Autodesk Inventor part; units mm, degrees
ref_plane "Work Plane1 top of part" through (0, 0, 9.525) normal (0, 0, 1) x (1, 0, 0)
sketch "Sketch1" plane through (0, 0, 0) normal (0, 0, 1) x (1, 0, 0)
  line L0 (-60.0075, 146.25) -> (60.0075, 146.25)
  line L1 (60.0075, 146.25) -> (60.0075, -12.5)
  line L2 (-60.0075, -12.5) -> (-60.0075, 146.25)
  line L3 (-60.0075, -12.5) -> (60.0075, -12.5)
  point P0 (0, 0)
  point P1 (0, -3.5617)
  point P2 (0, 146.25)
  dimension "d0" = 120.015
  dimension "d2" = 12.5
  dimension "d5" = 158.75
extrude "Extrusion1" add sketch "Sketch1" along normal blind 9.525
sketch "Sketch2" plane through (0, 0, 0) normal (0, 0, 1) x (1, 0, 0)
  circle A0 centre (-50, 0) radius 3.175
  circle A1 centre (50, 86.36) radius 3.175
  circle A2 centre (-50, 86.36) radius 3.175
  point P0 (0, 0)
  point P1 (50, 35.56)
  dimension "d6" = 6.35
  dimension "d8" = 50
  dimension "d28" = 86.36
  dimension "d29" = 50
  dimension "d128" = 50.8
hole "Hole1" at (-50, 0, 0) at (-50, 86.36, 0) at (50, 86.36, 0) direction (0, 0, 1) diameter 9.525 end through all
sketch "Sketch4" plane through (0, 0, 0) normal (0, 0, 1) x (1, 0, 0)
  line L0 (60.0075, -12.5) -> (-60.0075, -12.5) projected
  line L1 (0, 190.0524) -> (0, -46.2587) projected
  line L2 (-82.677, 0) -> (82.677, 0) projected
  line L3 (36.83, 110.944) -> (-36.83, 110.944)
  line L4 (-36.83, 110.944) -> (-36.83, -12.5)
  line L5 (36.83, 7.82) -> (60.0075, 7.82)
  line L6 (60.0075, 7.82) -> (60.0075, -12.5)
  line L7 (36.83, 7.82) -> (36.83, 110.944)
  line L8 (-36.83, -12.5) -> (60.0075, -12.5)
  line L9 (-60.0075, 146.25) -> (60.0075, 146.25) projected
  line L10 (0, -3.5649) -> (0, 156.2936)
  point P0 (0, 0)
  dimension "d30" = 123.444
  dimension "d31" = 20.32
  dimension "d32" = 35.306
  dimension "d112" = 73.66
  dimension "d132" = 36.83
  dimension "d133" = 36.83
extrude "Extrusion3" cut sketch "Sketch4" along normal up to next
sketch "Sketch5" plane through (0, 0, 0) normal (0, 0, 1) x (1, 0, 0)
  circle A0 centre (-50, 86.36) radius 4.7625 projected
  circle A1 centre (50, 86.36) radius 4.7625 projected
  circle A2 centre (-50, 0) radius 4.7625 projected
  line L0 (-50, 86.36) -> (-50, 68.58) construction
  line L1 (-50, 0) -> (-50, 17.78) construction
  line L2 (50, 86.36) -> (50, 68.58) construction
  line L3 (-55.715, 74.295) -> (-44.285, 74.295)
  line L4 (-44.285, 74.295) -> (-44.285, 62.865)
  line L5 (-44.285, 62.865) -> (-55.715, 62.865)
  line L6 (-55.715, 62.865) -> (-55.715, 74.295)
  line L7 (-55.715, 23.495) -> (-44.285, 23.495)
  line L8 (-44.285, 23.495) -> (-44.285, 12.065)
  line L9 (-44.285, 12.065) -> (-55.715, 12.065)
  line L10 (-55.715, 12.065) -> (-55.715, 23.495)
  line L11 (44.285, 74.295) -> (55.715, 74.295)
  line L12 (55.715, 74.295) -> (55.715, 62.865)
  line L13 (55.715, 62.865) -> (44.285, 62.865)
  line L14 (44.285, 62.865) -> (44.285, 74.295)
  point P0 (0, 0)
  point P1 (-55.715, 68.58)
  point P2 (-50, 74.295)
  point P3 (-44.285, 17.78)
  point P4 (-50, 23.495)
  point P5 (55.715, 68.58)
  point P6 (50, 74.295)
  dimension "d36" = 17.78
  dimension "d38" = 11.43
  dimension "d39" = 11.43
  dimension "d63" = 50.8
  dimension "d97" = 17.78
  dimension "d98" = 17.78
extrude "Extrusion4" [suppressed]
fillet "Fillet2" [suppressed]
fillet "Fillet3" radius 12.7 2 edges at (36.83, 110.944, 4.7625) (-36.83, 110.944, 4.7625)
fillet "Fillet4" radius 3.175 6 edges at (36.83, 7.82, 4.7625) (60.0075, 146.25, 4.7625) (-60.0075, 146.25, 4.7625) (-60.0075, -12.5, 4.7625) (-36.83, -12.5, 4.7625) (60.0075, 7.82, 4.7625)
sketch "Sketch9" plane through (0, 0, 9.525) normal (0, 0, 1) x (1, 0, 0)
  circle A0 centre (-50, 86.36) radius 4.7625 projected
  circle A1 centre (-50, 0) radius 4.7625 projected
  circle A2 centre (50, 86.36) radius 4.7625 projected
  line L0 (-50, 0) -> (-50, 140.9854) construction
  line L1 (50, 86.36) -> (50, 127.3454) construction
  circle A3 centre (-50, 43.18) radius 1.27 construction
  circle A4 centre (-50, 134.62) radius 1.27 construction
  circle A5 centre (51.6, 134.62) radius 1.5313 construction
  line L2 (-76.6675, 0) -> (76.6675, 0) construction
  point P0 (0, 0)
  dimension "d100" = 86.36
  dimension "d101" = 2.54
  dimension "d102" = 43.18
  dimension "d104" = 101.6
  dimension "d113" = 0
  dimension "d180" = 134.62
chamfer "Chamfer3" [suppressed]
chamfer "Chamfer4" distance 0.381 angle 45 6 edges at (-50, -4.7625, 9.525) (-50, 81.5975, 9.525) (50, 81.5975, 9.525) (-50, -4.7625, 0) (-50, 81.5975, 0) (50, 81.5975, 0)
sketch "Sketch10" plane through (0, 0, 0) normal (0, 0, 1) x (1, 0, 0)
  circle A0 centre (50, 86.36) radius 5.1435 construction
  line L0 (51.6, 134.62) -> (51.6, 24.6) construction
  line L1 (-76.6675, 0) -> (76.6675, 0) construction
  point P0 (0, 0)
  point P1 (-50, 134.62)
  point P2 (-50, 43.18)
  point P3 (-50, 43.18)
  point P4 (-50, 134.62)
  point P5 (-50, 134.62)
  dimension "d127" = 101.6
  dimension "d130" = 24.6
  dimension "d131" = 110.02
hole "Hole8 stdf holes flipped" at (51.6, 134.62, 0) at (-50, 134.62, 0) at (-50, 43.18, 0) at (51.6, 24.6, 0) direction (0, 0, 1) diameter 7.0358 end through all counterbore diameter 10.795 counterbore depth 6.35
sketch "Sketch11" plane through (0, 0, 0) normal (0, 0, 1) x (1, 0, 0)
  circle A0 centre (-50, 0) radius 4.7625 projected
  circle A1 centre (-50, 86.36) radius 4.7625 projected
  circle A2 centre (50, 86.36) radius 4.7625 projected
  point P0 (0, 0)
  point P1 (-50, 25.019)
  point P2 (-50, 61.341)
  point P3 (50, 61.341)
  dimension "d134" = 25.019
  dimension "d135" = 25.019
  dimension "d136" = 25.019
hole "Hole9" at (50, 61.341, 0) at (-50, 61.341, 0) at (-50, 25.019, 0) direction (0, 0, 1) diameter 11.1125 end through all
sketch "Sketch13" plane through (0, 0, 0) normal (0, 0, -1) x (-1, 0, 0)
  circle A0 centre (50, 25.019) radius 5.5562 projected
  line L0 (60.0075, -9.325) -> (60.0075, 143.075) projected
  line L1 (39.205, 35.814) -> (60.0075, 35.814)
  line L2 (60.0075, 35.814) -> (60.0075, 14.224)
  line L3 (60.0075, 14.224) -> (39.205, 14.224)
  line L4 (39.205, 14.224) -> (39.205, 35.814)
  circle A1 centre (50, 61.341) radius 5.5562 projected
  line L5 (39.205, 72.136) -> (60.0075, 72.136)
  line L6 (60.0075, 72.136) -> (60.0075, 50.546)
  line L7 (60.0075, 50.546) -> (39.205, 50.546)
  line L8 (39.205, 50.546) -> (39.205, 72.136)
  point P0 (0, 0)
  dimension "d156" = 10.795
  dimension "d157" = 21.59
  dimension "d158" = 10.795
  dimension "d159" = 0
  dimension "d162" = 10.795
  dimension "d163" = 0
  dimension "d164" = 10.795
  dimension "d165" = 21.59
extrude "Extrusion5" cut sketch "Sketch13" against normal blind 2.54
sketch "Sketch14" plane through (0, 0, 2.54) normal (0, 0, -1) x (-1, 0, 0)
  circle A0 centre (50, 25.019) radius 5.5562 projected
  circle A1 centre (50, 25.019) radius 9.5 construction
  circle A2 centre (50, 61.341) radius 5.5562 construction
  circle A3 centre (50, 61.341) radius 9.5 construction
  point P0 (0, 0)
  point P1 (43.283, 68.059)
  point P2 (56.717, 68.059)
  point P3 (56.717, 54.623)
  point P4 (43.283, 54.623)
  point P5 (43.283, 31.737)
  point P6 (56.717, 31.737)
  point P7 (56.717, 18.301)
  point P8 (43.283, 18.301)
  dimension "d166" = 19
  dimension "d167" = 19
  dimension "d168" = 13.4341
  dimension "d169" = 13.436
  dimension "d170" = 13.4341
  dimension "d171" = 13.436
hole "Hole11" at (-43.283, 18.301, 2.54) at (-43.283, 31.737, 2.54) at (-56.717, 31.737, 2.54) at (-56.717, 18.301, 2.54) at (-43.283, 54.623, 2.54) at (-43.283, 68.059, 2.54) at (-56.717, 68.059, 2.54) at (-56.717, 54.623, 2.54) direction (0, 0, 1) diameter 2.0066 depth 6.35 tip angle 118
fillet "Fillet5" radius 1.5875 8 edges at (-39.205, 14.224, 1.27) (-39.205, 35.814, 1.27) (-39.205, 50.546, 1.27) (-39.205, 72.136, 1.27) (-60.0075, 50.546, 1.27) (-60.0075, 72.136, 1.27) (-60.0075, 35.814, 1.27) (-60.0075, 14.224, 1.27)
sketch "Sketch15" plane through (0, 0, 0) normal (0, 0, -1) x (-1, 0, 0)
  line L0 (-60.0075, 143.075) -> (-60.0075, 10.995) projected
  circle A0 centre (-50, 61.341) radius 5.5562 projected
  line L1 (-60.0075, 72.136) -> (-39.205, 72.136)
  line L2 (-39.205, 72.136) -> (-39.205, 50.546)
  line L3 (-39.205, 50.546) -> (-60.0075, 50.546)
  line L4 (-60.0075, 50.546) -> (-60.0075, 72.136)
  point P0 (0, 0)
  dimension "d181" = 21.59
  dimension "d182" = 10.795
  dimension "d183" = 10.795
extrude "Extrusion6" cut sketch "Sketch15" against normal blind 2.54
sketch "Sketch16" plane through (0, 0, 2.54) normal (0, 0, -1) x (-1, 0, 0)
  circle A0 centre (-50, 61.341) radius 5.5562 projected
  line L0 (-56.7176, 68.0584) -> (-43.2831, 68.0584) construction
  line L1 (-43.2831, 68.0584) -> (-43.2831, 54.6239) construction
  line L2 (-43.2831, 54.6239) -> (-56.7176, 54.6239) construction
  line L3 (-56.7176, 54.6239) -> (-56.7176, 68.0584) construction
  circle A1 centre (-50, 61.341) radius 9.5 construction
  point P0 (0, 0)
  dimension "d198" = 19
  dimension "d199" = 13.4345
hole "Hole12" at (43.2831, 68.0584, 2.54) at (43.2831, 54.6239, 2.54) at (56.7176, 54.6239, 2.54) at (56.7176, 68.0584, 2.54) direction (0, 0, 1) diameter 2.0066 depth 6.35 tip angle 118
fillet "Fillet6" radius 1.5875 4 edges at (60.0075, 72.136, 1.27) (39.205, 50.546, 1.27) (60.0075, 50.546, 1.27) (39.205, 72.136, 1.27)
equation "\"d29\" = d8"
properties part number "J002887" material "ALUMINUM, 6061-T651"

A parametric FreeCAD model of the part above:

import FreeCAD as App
import Part
import Sketcher
Q = App.Units.Quantity


def edges_at(feature, points):
    """Names of the edges that pass closest to the given points."""
    edges = feature.Shape.Edges
    near = lambda p: min(range(len(edges)), key=lambda i: edges[i].distToShape(Part.Vertex(*p))[0])
    return sorted({f"Edge{near(p) + 1}" for p in points})

doc = App.newDocument("Part")
params = doc.addObject("Spreadsheet::Sheet", "Params")
for row, (alias, value) in enumerate([
    ("sketch1_height", "6.25 in"),
    ("sketch1_width", "4.725 in"),
    ("pad1_length", "0.375 in"),
    ("sketch2_diameter", "0.375 in"),
    ("hole_diameter", "0.375 in"),
    ("sketch3_width", "2.9 in"),
    ("sketch3_height", "0.8 in"),
    ("sketch3_height2", "4.86 in"),
    ("sketch3_width2", "3.8125 in"),
    ("fillet_radius", "0.5 in"),
    ("fillet2_radius", "0.125 in"),
    ("chamfer_size", "0.015 in"),
    ("sketch4_diameter", "0.277 in"),
    ("hole2_diameter", "0.277 in"),
    ("hole2_cbore_diameter", "0.425 in"),
    ("hole2_cbore_depth", "0.25 in"),
    ("sketch5_diameter", "0.4375 in"),
    ("hole3_diameter", "0.4375 in"),
    ("sketch6_height", "0.85 in"),
    ("sketch6_diameter", "0.4375 in"),
    ("sketch6_width", "0.819 in"),
    ("pocket2_length", "0.1 in"),
    ("sketch7_diameter", "0.079 in"),
    ("hole4_diameter", "0.079 in"),
    ("hole4_depth", "0.25 in"),
    ("fillet3_radius", "0.0625 in"),
    ("sketch8_height", "0.85 in"),
    ("sketch8_diameter", "0.4375 in"),
    ("sketch8_width", "0.819 in"),
    ("pocket3_length", "0.1 in"),
    ("sketch9_diameter", "0.079 in"),
    ("hole5_diameter", "0.079 in"),
    ("hole5_depth", "0.25 in"),
    ("fillet4_radius", "0.0625 in"),
], start=1):
    params.set(f"A{row}", alias)
    params.set(f"B{row}", "=" + value)
    params.setAlias(f"B{row}", alias)

body = doc.addObject("PartDesign::Body", "Body")

# Sketch on XY plane
sketch1 = body.newObject("Sketcher::SketchObject", "Sketch")
sketch1.AttachmentSupport = (doc.getObject("XY_Plane"), [""])
sketch1.MapMode = "FlatFace"
sketch1.addGeometry([
    Part.LineSegment(App.Vector(60.0075, 146.25, 0), App.Vector(-60.0075, 146.25, 0)),
    Part.LineSegment(App.Vector(-60.0075, 146.25, 0), App.Vector(-60.0075, -12.5, 0)),
    Part.LineSegment(App.Vector(-60.0075, -12.5, 0), App.Vector(60.0075, -12.5, 0)),
    Part.LineSegment(App.Vector(60.0075, -12.5, 0), App.Vector(60.0075, 146.25, 0)),
], False)
sketch1.addConstraint([
    Sketcher.Constraint("Coincident", 0, 2, 1, 1),
    Sketcher.Constraint("Coincident", 1, 2, 2, 1),
    Sketcher.Constraint("Coincident", 2, 2, 3, 1),
    Sketcher.Constraint("Coincident", 3, 2, 0, 1),
    Sketcher.Constraint("Horizontal", 0),
    Sketcher.Constraint("Vertical", 1),
    Sketcher.Constraint("Horizontal", 2),
    Sketcher.Constraint("Vertical", 3),
    Sketcher.Constraint("DistanceY", 1, 2, 1, 1, Q("6.25 in")),
    Sketcher.Constraint("DistanceX", 0, 2, 0, 1, Q("4.725 in")),
    Sketcher.Constraint("DistanceY", 1, 2, -1, 1, 12.5),
    Sketcher.Constraint("DistanceX", 0, 2, -1, 1, Q("2.3625 in")),
])
sketch1.setExpression("Constraints[8]", "Params.sketch1_height")
sketch1.setExpression("Constraints[9]", "Params.sketch1_width")
pad1 = body.newObject("PartDesign::Pad", "Pad")
pad1.Profile = sketch1
pad1.setExpression("Length", "Params.pad1_length")

# Sketch on XY plane
sketch2 = body.newObject("Sketcher::SketchObject", "Sketch001")
sketch2.AttachmentSupport = (doc.getObject("XY_Plane"), [""])
sketch2.MapMode = "FlatFace"
sketch2.addGeometry([
    Part.Circle(App.Vector(-50, 0, 0), App.Vector(0, 0, 1), 4.7625),
    Part.Circle(App.Vector(-50, 86.36, 0), App.Vector(0, 0, 1), 4.7625),
    Part.Circle(App.Vector(50, 86.36, 0), App.Vector(0, 0, 1), 4.7625),
], False)
sketch2.addConstraint([
    Sketcher.Constraint("Equal", 0, 1),
    Sketcher.Constraint("Equal", 1, 2),
    Sketcher.Constraint("Symmetric", 1, 3, 2, 3, -2),
    Sketcher.Constraint("PointOnObject", 0, 3, -1),
    Sketcher.Constraint("Vertical", 0, 3, 1, 3),
    Sketcher.Constraint("Diameter", 0, Q("0.375 in")),
    Sketcher.Constraint("DistanceY", -1, 1, 1, 3, Q("3.4 in")),
    Sketcher.Constraint("DistanceX", 1, 3, 2, 3, Q("3.937 in")),
])
sketch2.setExpression("Constraints[5]", "Params.sketch2_diameter")
doc.recompute()
hole = body.newObject("PartDesign::Hole", "Hole")
hole.Profile = sketch2
hole.ThreadType = "None"
hole.setExpression("Diameter", "Params.hole_diameter")
hole.DepthType = "ThroughAll"
hole.Reversed = True

# Sketch on XY plane
sketch3 = body.newObject("Sketcher::SketchObject", "Sketch002")
sketch3.AttachmentSupport = (doc.getObject("XY_Plane"), [""])
sketch3.MapMode = "FlatFace"
sketch3.addGeometry([
    Part.LineSegment(App.Vector(60.0075, -12.5, 0), App.Vector(60.0075, 7.82, 0)),  # 0
    Part.LineSegment(App.Vector(60.0075, 7.82, 0), App.Vector(36.83, 7.82, 0)),  # 1
    Part.LineSegment(App.Vector(36.83, 7.82, 0), App.Vector(36.83, 110.944, 0)),  # 2
    Part.LineSegment(App.Vector(36.83, 110.944, 0), App.Vector(-36.83, 110.944, 0)),  # 3
    Part.LineSegment(App.Vector(-36.83, 110.944, 0), App.Vector(-36.83, -12.5, 0)),  # 4
    Part.LineSegment(App.Vector(-36.83, -12.5, 0), App.Vector(60.0075, -12.5, 0)),  # 5
], False)
sketch3.addConstraint([
    Sketcher.Constraint("Coincident", 0, 2, 1, 1),
    Sketcher.Constraint("Coincident", 1, 2, 2, 1),
    Sketcher.Constraint("Coincident", 2, 2, 3, 1),
    Sketcher.Constraint("Coincident", 3, 2, 4, 1),
    Sketcher.Constraint("Coincident", 4, 2, 5, 1),
    Sketcher.Constraint("Coincident", 5, 2, 0, 1),
    Sketcher.Constraint("Vertical", 0),
    Sketcher.Constraint("Horizontal", 1),
    Sketcher.Constraint("Vertical", 2),
    Sketcher.Constraint("Horizontal", 3),
    Sketcher.Constraint("Vertical", 4),
    Sketcher.Constraint("Horizontal", 5),
    Sketcher.Constraint("DistanceX", 3, 2, 3, 1, Q("2.9 in")),
    Sketcher.Constraint("DistanceY", 0, 1, 0, 2, Q("0.8 in")),
    Sketcher.Constraint("DistanceY", 4, 2, 4, 1, Q("4.86 in")),
    Sketcher.Constraint("DistanceX", -1, 1, 1, 2, Q("1.45 in")),
    Sketcher.Constraint("DistanceX", 5, 1, 5, 2, Q("3.8125 in")),
    Sketcher.Constraint("DistanceY", -1, 1, 0, 2, 7.82),
])
sketch3.setExpression("Constraints[12]", "Params.sketch3_width")
sketch3.setExpression("Constraints[13]", "Params.sketch3_height")
sketch3.setExpression("Constraints[14]", "Params.sketch3_height2")
sketch3.setExpression("Constraints[16]", "Params.sketch3_width2")
pocket1 = body.newObject("PartDesign::Pocket", "Pocket")
pocket1.Profile = sketch3
pocket1.Type = "UpToFirst"
pocket1.Reversed = True
doc.recompute()

fillet = body.newObject("PartDesign::Fillet", "Fillet")
fillet.Base = (pocket1, edges_at(pocket1, [(36.83, 110.944, 4.763), (-36.83, 110.944, 4.763)]))
fillet.setExpression("Radius", "Params.fillet_radius")
doc.recompute()

fillet2 = body.newObject("PartDesign::Fillet", "Fillet001")
fillet2.Base = (fillet, edges_at(fillet, [
    (36.83, 7.82, 4.763),
    (60.008, 146.25, 4.763),
    (-60.008, 146.25, 4.763),
    (-60.008, -12.5, 4.763),
    (-36.83, -12.5, 4.763),
    (60.008, 7.82, 4.763),
]))
fillet2.setExpression("Radius", "Params.fillet2_radius")
doc.recompute()

chamfer = body.newObject("PartDesign::Chamfer", "Chamfer")
chamfer.Base = (fillet2, edges_at(fillet2, [
    (-50, -4.763, 9.525),
    (-50, 81.597, 9.525),
    (50, 81.597, 9.525),
    (-50, -4.763, 0),
    (-50, 81.597, 0),
    (50, 81.597, 0),
]))
chamfer.setExpression("Size", "Params.chamfer_size")

# Sketch on XY plane
sketch4 = body.newObject("Sketcher::SketchObject", "Sketch003")
sketch4.AttachmentSupport = (doc.getObject("XY_Plane"), [""])
sketch4.MapMode = "FlatFace"
sketch4.addGeometry([
    Part.Circle(App.Vector(51.6, 134.62, 0), App.Vector(0, 0, 1), 3.5179),
    Part.Circle(App.Vector(-50, 134.62, 0), App.Vector(0, 0, 1), 3.5179),
    Part.Circle(App.Vector(-50, 43.18, 0), App.Vector(0, 0, 1), 3.5179),
    Part.Circle(App.Vector(51.6, 24.6, 0), App.Vector(0, 0, 1), 3.5179),
], False)
sketch4.addConstraint([
    Sketcher.Constraint("Equal", 0, 1),
    Sketcher.Constraint("Equal", 1, 2),
    Sketcher.Constraint("Equal", 2, 3),
    Sketcher.Constraint("Horizontal", 0, 3, 1, 3),
    Sketcher.Constraint("Vertical", 1, 3, 2, 3),
    Sketcher.Constraint("Vertical", 0, 3, 3, 3),
    Sketcher.Constraint("Diameter", 0, Q("0.277 in")),
    Sketcher.Constraint("DistanceX", 1, 3, 0, 3, Q("4 in")),
    Sketcher.Constraint("DistanceY", -1, 1, 0, 3, Q("5.3 in")),
    Sketcher.Constraint("DistanceY", -1, 1, 2, 3, Q("1.7 in")),
    Sketcher.Constraint("DistanceX", -1, 1, 0, 3, Q("2.0315 in")),
    Sketcher.Constraint("DistanceY", -1, 1, 3, 3, Q("0.9685 in")),
])
sketch4.setExpression("Constraints[6]", "Params.sketch4_diameter")
doc.recompute()
hole2 = body.newObject("PartDesign::Hole", "Hole001")
hole2.Profile = sketch4
hole2.ThreadType = "None"
hole2.setExpression("Diameter", "Params.hole2_diameter")
hole2.DepthType = "ThroughAll"
hole2.HoleCutType = "Counterbore"
hole2.setExpression("HoleCutDiameter", "Params.hole2_cbore_diameter")
hole2.setExpression("HoleCutDepth", "Params.hole2_cbore_depth")
hole2.Reversed = True

# Sketch on XY plane
sketch5 = body.newObject("Sketcher::SketchObject", "Sketch004")
sketch5.AttachmentSupport = (doc.getObject("XY_Plane"), [""])
sketch5.MapMode = "FlatFace"
sketch5.addGeometry([
    Part.Circle(App.Vector(50, 61.341, 0), App.Vector(0, 0, 1), 5.55625),
    Part.Circle(App.Vector(-50, 61.341, 0), App.Vector(0, 0, 1), 5.55625),
    Part.Circle(App.Vector(-50, 25.019, 0), App.Vector(0, 0, 1), 5.55625),
], False)
sketch5.addConstraint([
    Sketcher.Constraint("Equal", 0, 1),
    Sketcher.Constraint("Equal", 1, 2),
    Sketcher.Constraint("Symmetric", 0, 3, 1, 3, -2),
    Sketcher.Constraint("Vertical", 1, 3, 2, 3),
    Sketcher.Constraint("Diameter", 0, Q("0.4375 in")),
    Sketcher.Constraint("DistanceY", 2, 3, 1, 3, Q("1.43 in")),
    Sketcher.Constraint("DistanceY", -1, 1, 0, 3, Q("2.415 in")),
    Sketcher.Constraint("DistanceX", 1, 3, 0, 3, Q("3.937 in")),
])
sketch5.setExpression("Constraints[4]", "Params.sketch5_diameter")
doc.recompute()
hole3 = body.newObject("PartDesign::Hole", "Hole002")
hole3.Profile = sketch5
hole3.ThreadType = "None"
hole3.setExpression("Diameter", "Params.hole3_diameter")
hole3.DepthType = "ThroughAll"
hole3.Reversed = True

# Sketch on XY plane
sketch6 = body.newObject("Sketcher::SketchObject", "Sketch005")
sketch6.AttachmentSupport = (doc.getObject("XY_Plane"), [""])
sketch6.MapMode = "FlatFace"
sketch6.addGeometry([
    Part.LineSegment(App.Vector(-39.205, 14.224, 0), App.Vector(-60.0075, 14.224, 0)),  # 0
    Part.LineSegment(App.Vector(-60.0075, 14.224, 0), App.Vector(-60.0075, 35.814, 0)),  # 1
    Part.LineSegment(App.Vector(-60.0075, 35.814, 0), App.Vector(-39.205, 35.814, 0)),  # 2
    Part.LineSegment(App.Vector(-39.205, 35.814, 0), App.Vector(-39.205, 14.224, 0)),  # 3
    Part.Circle(App.Vector(-50, 25.019, 0), App.Vector(0, 0, 1), 5.5562),  # 4
    Part.LineSegment(App.Vector(-39.205, 50.546, 0), App.Vector(-60.0075, 50.546, 0)),  # 5
    Part.LineSegment(App.Vector(-60.0075, 50.546, 0), App.Vector(-60.0075, 72.136, 0)),  # 6
    Part.LineSegment(App.Vector(-60.0075, 72.136, 0), App.Vector(-39.205, 72.136, 0)),  # 7
    Part.LineSegment(App.Vector(-39.205, 72.136, 0), App.Vector(-39.205, 50.546, 0)),  # 8
    Part.Circle(App.Vector(-50, 61.341, 0), App.Vector(0, 0, 1), 5.5562),  # 9
], False)
sketch6.addConstraint([
    Sketcher.Constraint("Coincident", 0, 2, 1, 1),
    Sketcher.Constraint("Coincident", 1, 2, 2, 1),
    Sketcher.Constraint("Coincident", 2, 2, 3, 1),
    Sketcher.Constraint("Coincident", 3, 2, 0, 1),
    Sketcher.Constraint("Coincident", 5, 2, 6, 1),
    Sketcher.Constraint("Coincident", 6, 2, 7, 1),
    Sketcher.Constraint("Coincident", 7, 2, 8, 1),
    Sketcher.Constraint("Coincident", 8, 2, 5, 1),
    Sketcher.Constraint("Horizontal", 0),
    Sketcher.Constraint("Vertical", 1),
    Sketcher.Constraint("Horizontal", 2),
    Sketcher.Constraint("Vertical", 3),
    Sketcher.Constraint("Horizontal", 5),
    Sketcher.Constraint("Vertical", 6),
    Sketcher.Constraint("Horizontal", 7),
    Sketcher.Constraint("Vertical", 8),
    Sketcher.Constraint("Equal", 4, 9),
    Sketcher.Constraint("Vertical", 4, 3, 9, 3),
    Sketcher.Constraint("Vertical", 1, 2, 5, 2),
    Sketcher.Constraint("Vertical", 3, 2, 7, 2),
    Sketcher.Constraint("Equal", 3, 6),
    Sketcher.Constraint("DistanceY", 1, 1, 1, 2, Q("0.85 in")),
    Sketcher.Constraint("Diameter", 4, Q("0.4375 in")),
    Sketcher.Constraint("DistanceY", 0, 2, 4, 3, Q("0.425 in")),
    Sketcher.Constraint("DistanceX", 4, 3, 2, 2, Q("0.425 in")),
    Sketcher.Constraint("DistanceY", 5, 2, 9, 3, Q("0.425 in")),
    Sketcher.Constraint("DistanceX", 0, 2, 0, 1, Q("0.819 in")),
    Sketcher.Constraint("DistanceY", -1, 1, 0, 2, Q("0.56 in")),
    Sketcher.Constraint("DistanceY", -1, 1, 5, 2, Q("1.99 in")),
    Sketcher.Constraint("DistanceX", 4, 3, -1, 1, Q("1.9685 in")),
])
sketch6.setExpression("Constraints[21]", "Params.sketch6_height")
sketch6.setExpression("Constraints[22]", "Params.sketch6_diameter")
sketch6.setExpression("Constraints[26]", "Params.sketch6_width")
pocket2 = body.newObject("PartDesign::Pocket", "Pocket001")
pocket2.Profile = sketch6
pocket2.setExpression("Length", "Params.pocket2_length")
pocket2.Reversed = True

# Sketch on XY plane
sketch7 = body.newObject("Sketcher::SketchObject", "Sketch006")
sketch7.AttachmentSupport = (doc.getObject("XY_Plane"), [""])
sketch7.MapMode = "FlatFace"
sketch7.AttachmentOffset = App.Placement(App.Vector(0, 0, 0.1 * 25.4), App.Rotation())
sketch7.addGeometry([
    Part.Circle(App.Vector(-43.283, 18.301, 0), App.Vector(0, 0, 1), 1.0033),  # 0
    Part.Circle(App.Vector(-43.283, 31.737, 0), App.Vector(0, 0, 1), 1.0033),  # 1
    Part.Circle(App.Vector(-56.717, 31.737, 0), App.Vector(0, 0, 1), 1.0033),  # 2
    Part.Circle(App.Vector(-56.717, 18.301, 0), App.Vector(0, 0, 1), 1.0033),  # 3
    Part.Circle(App.Vector(-43.283, 54.623, 0), App.Vector(0, 0, 1), 1.0033),  # 4
    Part.Circle(App.Vector(-43.283, 68.059, 0), App.Vector(0, 0, 1), 1.0033),  # 5
    Part.Circle(App.Vector(-56.717, 68.059, 0), App.Vector(0, 0, 1), 1.0033),  # 6
    Part.Circle(App.Vector(-56.717, 54.623, 0), App.Vector(0, 0, 1), 1.0033),  # 7
], False)
sketch7.addConstraint([
    Sketcher.Constraint("Equal", 0, 1),
    Sketcher.Constraint("Equal", 1, 2),
    Sketcher.Constraint("Equal", 2, 3),
    Sketcher.Constraint("Equal", 3, 4),
    Sketcher.Constraint("Equal", 4, 5),
    Sketcher.Constraint("Equal", 5, 6),
    Sketcher.Constraint("Equal", 6, 7),
    Sketcher.Constraint("Horizontal", 1, 3, 2, 3),
    Sketcher.Constraint("Horizontal", 0, 3, 3, 3),
    Sketcher.Constraint("Horizontal", 5, 3, 6, 3),
    Sketcher.Constraint("Horizontal", 4, 3, 7, 3),
    Sketcher.Constraint("Vertical", 0, 3, 1, 3),
    Sketcher.Constraint("Vertical", 2, 3, 3, 3),
    Sketcher.Constraint("Vertical", 1, 3, 4, 3),
    Sketcher.Constraint("Vertical", 4, 3, 5, 3),
    Sketcher.Constraint("Vertical", 3, 3, 6, 3),
    Sketcher.Constraint("Vertical", 6, 3, 7, 3),
    Sketcher.Constraint("Diameter", 0, Q("0.079 in")),
    Sketcher.Constraint("DistanceY", 0, 3, 4, 3, Q("1.43 in")),
    Sketcher.Constraint("DistanceY", 1, 3, 5, 3, Q("1.43 in")),
    Sketcher.Constraint("DistanceY", -1, 1, 0, 3, Q("0.7205 in")),
    Sketcher.Constraint("DistanceY", -1, 1, 1, 3, Q("1.2495 in")),
    Sketcher.Constraint("DistanceX", 2, 3, 1, 3, Q("0.5289 in")),
    Sketcher.Constraint("DistanceX", 0, 3, -1, 1, 43.283),
])
sketch7.setExpression("Constraints[17]", "Params.sketch7_diameter")
doc.recompute()
hole4 = body.newObject("PartDesign::Hole", "Hole003")
hole4.Profile = sketch7
hole4.ThreadType = "None"
hole4.setExpression("Diameter", "Params.hole4_diameter")
hole4.DepthType = "Dimension"
hole4.setExpression("Depth", "Params.hole4_depth")
hole4.DrillPoint = "Angled"
hole4.DrillPointAngle = 118
hole4.Reversed = True
doc.recompute()

fillet3 = body.newObject("PartDesign::Fillet", "Fillet002")
fillet3.Base = (hole4, edges_at(hole4, [
    (-39.205, 14.224, 1.27),
    (-39.205, 35.814, 1.27),
    (-39.205, 50.546, 1.27),
    (-39.205, 72.136, 1.27),
    (-60.008, 50.546, 1.27),
    (-60.008, 72.136, 1.27),
    (-60.008, 35.814, 1.27),
    (-60.008, 14.224, 1.27),
]))
fillet3.setExpression("Radius", "Params.fillet3_radius")

# Sketch on XY plane
sketch8 = body.newObject("Sketcher::SketchObject", "Sketch007")
sketch8.AttachmentSupport = (doc.getObject("XY_Plane"), [""])
sketch8.MapMode = "FlatFace"
sketch8.addGeometry([
    Part.LineSegment(App.Vector(39.205, 72.136, 0), App.Vector(60.0075, 72.136, 0)),  # 0
    Part.LineSegment(App.Vector(60.0075, 72.136, 0), App.Vector(60.0075, 50.546, 0)),  # 1
    Part.LineSegment(App.Vector(60.0075, 50.546, 0), App.Vector(39.205, 50.546, 0)),  # 2
    Part.LineSegment(App.Vector(39.205, 50.546, 0), App.Vector(39.205, 72.136, 0)),  # 3
    Part.Circle(App.Vector(50, 61.341, 0), App.Vector(0, 0, 1), 5.5562),  # 4
], False)
sketch8.addConstraint([
    Sketcher.Constraint("Coincident", 0, 2, 1, 1),
    Sketcher.Constraint("Coincident", 1, 2, 2, 1),
    Sketcher.Constraint("Coincident", 2, 2, 3, 1),
    Sketcher.Constraint("Coincident", 3, 2, 0, 1),
    Sketcher.Constraint("Horizontal", 0),
    Sketcher.Constraint("Vertical", 1),
    Sketcher.Constraint("Horizontal", 2),
    Sketcher.Constraint("Vertical", 3),
    Sketcher.Constraint("DistanceY", 1, 2, 1, 1, Q("0.85 in")),
    Sketcher.Constraint("Diameter", 4, Q("0.4375 in")),
    Sketcher.Constraint("DistanceY", 4, 3, 0, 2, Q("0.425 in")),
    Sketcher.Constraint("DistanceX", 2, 2, 4, 3, Q("0.425 in")),
    Sketcher.Constraint("DistanceX", 0, 1, 0, 2, Q("0.819 in")),
    Sketcher.Constraint("DistanceY", -1, 1, 0, 2, Q("2.84 in")),
    Sketcher.Constraint("DistanceX", -1, 1, 4, 3, Q("1.9685 in")),
])
sketch8.setExpression("Constraints[8]", "Params.sketch8_height")
sketch8.setExpression("Constraints[9]", "Params.sketch8_diameter")
sketch8.setExpression("Constraints[12]", "Params.sketch8_width")
pocket3 = body.newObject("PartDesign::Pocket", "Pocket002")
pocket3.Profile = sketch8
pocket3.setExpression("Length", "Params.pocket3_length")
pocket3.Reversed = True

# Sketch on XY plane
sketch9 = body.newObject("Sketcher::SketchObject", "Sketch008")
sketch9.AttachmentSupport = (doc.getObject("XY_Plane"), [""])
sketch9.MapMode = "FlatFace"
sketch9.AttachmentOffset = App.Placement(App.Vector(0, 0, 0.1 * 25.4), App.Rotation())
sketch9.addGeometry([
    Part.Circle(App.Vector(43.2831, 68.0584, 0), App.Vector(0, 0, 1), 1.0033),
    Part.Circle(App.Vector(43.2831, 54.6239, 0), App.Vector(0, 0, 1), 1.0033),
    Part.Circle(App.Vector(56.7176, 54.6239, 0), App.Vector(0, 0, 1), 1.0033),
    Part.Circle(App.Vector(56.7176, 68.0584, 0), App.Vector(0, 0, 1), 1.0033),
], False)
sketch9.addConstraint([
    Sketcher.Constraint("Equal", 0, 1),
    Sketcher.Constraint("Equal", 1, 2),
    Sketcher.Constraint("Equal", 2, 3),
    Sketcher.Constraint("Horizontal", 1, 3, 2, 3),
    Sketcher.Constraint("Horizontal", 0, 3, 3, 3),
    Sketcher.Constraint("Vertical", 0, 3, 1, 3),
    Sketcher.Constraint("Vertical", 2, 3, 3, 3),
    Sketcher.Constraint("Diameter", 0, Q("0.079 in")),
    Sketcher.Constraint("DistanceX", -1, 1, 0, 3, 43.283),
    Sketcher.Constraint("DistanceY", -1, 1, 0, 3, 68.0584),
    Sketcher.Constraint("DistanceY", -1, 1, 1, 3, 54.624),
    Sketcher.Constraint("DistanceX", -1, 1, 2, 3, 56.7176),
])
sketch9.setExpression("Constraints[7]", "Params.sketch9_diameter")
doc.recompute()
hole5 = body.newObject("PartDesign::Hole", "Hole004")
hole5.Profile = sketch9
hole5.ThreadType = "None"
hole5.setExpression("Diameter", "Params.hole5_diameter")
hole5.DepthType = "Dimension"
hole5.setExpression("Depth", "Params.hole5_depth")
hole5.DrillPoint = "Angled"
hole5.DrillPointAngle = 118
hole5.Reversed = True
doc.recompute()

fillet4 = body.newObject("PartDesign::Fillet", "Fillet003")
fillet4.Base = (hole5, edges_at(hole5, [
    (60.008, 72.136, 1.27),
    (39.205, 50.546, 1.27),
    (60.008, 50.546, 1.27),
    (39.205, 72.136, 1.27),
]))
fillet4.setExpression("Radius", "Params.fillet4_radius")

doc.recompute()
